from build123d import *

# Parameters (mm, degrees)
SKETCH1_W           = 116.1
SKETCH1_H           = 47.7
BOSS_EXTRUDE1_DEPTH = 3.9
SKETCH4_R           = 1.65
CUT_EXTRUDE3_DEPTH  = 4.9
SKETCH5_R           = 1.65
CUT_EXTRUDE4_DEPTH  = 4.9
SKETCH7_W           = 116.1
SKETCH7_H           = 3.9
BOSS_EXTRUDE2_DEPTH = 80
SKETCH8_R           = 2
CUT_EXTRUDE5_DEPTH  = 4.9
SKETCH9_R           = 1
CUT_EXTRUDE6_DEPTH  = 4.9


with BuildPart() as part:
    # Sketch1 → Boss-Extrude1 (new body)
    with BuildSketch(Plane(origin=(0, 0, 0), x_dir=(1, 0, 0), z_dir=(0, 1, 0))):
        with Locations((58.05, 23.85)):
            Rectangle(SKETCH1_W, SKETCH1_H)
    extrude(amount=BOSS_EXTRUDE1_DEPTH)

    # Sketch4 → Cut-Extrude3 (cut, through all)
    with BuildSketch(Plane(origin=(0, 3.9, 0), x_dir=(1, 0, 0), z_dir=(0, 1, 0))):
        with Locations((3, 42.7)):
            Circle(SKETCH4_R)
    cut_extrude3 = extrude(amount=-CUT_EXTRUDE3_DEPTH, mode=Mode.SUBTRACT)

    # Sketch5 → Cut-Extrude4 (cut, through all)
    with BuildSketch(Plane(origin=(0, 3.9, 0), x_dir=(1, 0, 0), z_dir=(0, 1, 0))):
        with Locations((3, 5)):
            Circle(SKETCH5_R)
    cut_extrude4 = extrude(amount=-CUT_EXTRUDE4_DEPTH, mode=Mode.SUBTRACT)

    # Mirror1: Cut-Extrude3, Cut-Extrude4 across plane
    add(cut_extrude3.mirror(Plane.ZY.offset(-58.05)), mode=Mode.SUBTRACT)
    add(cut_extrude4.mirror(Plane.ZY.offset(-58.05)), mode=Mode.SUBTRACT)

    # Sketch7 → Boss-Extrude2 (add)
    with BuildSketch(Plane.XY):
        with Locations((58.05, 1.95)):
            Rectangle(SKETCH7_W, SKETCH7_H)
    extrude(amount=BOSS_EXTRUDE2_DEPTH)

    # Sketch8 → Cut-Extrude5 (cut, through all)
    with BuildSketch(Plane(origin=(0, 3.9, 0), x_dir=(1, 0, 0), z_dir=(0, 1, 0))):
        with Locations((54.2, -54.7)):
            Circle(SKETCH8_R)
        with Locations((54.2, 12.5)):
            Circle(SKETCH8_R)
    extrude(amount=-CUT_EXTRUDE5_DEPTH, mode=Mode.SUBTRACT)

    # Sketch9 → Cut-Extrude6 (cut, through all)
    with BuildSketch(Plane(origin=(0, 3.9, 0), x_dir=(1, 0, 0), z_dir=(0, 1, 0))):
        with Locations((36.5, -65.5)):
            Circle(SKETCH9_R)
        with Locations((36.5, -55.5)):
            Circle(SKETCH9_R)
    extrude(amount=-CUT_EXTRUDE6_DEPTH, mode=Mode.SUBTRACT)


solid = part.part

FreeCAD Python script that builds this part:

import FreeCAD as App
import Part
import Sketcher
Q = App.Units.Quantity


def add_polygon(sketch, points):
    """Adds a closed chain of lines whose ends are joined by coincident constraints."""
    first, n = sketch.GeometryCount, len(points)
    for a, b in zip(points, points[1:] + points[:1]):
        sketch.addGeometry(Part.LineSegment(App.Vector(*a, 0), App.Vector(*b, 0)), False)
    for i in range(n):
        sketch.addConstraint(Sketcher.Constraint("Coincident", first + i, 2, first + (i + 1) % n, 1))

doc = App.newDocument("Part")
body = doc.addObject("PartDesign::Body", "Body")

sketch1 = doc.addObject("Sketcher::SketchObject", "Sketch")
body.addObject(sketch1)
sketch1.AttachmentSupport = (doc.XZ_Plane, [""])
sketch1.MapMode = "FlatFace"
add_polygon(sketch1, [(0, -48), (0, 0), (116, 0), (116, -48)])
sketch1.addConstraint(Sketcher.Constraint("Vertical", 0))
sketch1.addConstraint(Sketcher.Constraint("Horizontal", 1))
sketch1.addConstraint(Sketcher.Constraint("Vertical", 2))
sketch1.addConstraint(Sketcher.Constraint("Horizontal", 3))
sketch1.addConstraint(Sketcher.Constraint("Coincident", 0, 2, -1, 1))
sketch1.addConstraint(Sketcher.Constraint("DistanceX", 1, 1, 1, 2, Q("116.1 mm")))
sketch1.addConstraint(Sketcher.Constraint("DistanceY", 0, 1, 0, 2, Q("47.7 mm")))
pad1 = doc.addObject("PartDesign::Pad", "Pad")
body.addObject(pad1)
pad1.Profile = sketch1
pad1.Length = 3.9
pad1.Reversed = True

sketch2 = doc.addObject("Sketcher::SketchObject", "Sketch001")
body.addObject(sketch2)
sketch2.AttachmentSupport = (doc.XZ_Plane, [""])
sketch2.MapMode = "FlatFace"
sketch2.AttachmentOffset = App.Placement(App.Vector(0, 0, -3.9), App.Rotation())
sketch2.addGeometry(Part.Circle(App.Vector(3, -42.7, 0), App.Vector(0, 0, 1), 1.6), False)
sketch2.addConstraint(Sketcher.Constraint("Diameter", 0, Q("3.3 mm")))
sketch2.addConstraint(Sketcher.Constraint("DistanceX", -1, 1, 0, 3, Q("3 mm")))
sketch2.addConstraint(Sketcher.Constraint("DistanceY", 0, 3, -1, 1, Q("42.7 mm")))
pocket1 = doc.addObject("PartDesign::Pocket", "Pocket")
body.addObject(pocket1)
pocket1.Profile = sketch2
pocket1.Type = "ThroughAll"
pocket1.Reversed = True

sketch3 = doc.addObject("Sketcher::SketchObject", "Sketch002")
body.addObject(sketch3)
sketch3.AttachmentSupport = (doc.XZ_Plane, [""])
sketch3.MapMode = "FlatFace"
sketch3.AttachmentOffset = App.Placement(App.Vector(0, 0, -3.9), App.Rotation())
sketch3.addGeometry(Part.Circle(App.Vector(3, -5, 0), App.Vector(0, 0, 1), 1.6), False)
sketch3.addConstraint(Sketcher.Constraint("Diameter", 0, Q("3.3 mm")))
sketch3.addConstraint(Sketcher.Constraint("DistanceX", -1, 1, 0, 3, Q("3 mm")))
sketch3.addConstraint(Sketcher.Constraint("DistanceY", 0, 3, -1, 1, Q("5 mm")))
pocket2 = doc.addObject("PartDesign::Pocket", "Pocket001")
body.addObject(pocket2)
pocket2.Profile = sketch3
pocket2.Type = "ThroughAll"
pocket2.Reversed = True
doc.recompute()

datumplane = doc.addObject("PartDesign::Plane", "DatumPlane")
body.addObject(datumplane)
datumplane.AttachmentSupport = (doc.YZ_Plane, [""])
datumplane.MapMode = "FlatFace"
datumplane.AttachmentOffset = App.Placement(App.Vector(0, 0, 58.05), App.Rotation())
mirrored = doc.addObject("PartDesign::Mirrored", "Mirrored")
body.addObject(mirrored)
mirrored.Originals = [pocket1, pocket2]
mirrored.MirrorPlane = (datumplane, [""])
body.Tip = mirrored

sketch4 = doc.addObject("Sketcher::SketchObject", "Sketch003")
body.addObject(sketch4)
sketch4.AttachmentSupport = (doc.XY_Plane, [""])
sketch4.MapMode = "FlatFace"
add_polygon(sketch4, [(0, 3.9), (0, 0), (116.1, 0), (116.1, 3.9)])
sketch4.addConstraint(Sketcher.Constraint("Vertical", 0))
sketch4.addConstraint(Sketcher.Constraint("Horizontal", 1))
sketch4.addConstraint(Sketcher.Constraint("Vertical", 2))
sketch4.addConstraint(Sketcher.Constraint("Horizontal", 3))
sketch4.addConstraint(Sketcher.Constraint("Coincident", 0, 2, -1, 1))
sketch4.addConstraint(Sketcher.Constraint("DistanceX", 1, 1, 1, 2, Q("116.1 mm")))
sketch4.addConstraint(Sketcher.Constraint("DistanceY", 0, 2, 0, 1, Q("3.9 mm")))
pad2 = doc.addObject("PartDesign::Pad", "Pad001")
body.addObject(pad2)
pad2.Profile = sketch4
pad2.Length = 80

sketch5 = doc.addObject("Sketcher::SketchObject", "Sketch004")
body.addObject(sketch5)
sketch5.AttachmentSupport = (doc.XZ_Plane, [""])
sketch5.MapMode = "FlatFace"
sketch5.AttachmentOffset = App.Placement(App.Vector(0, 0, -3.9), App.Rotation())
sketch5.addGeometry(Part.Circle(App.Vector(54.2, 54.7, 0), App.Vector(0, 0, 1), 2), False)
sketch5.addGeometry(Part.Circle(App.Vector(54.2, -12.5, 0), App.Vector(0, 0, 1), 2), False)
sketch5.addConstraint(Sketcher.Constraint("Equal", 0, 1))
sketch5.addConstraint(Sketcher.Constraint("Vertical", 0, 3, 1, 3))
sketch5.addConstraint(Sketcher.Constraint("Diameter", 0, Q("4 mm")))
sketch5.addConstraint(Sketcher.Constraint("DistanceX", -1, 1, 0, 3, Q("54.2 mm")))
sketch5.addConstraint(Sketcher.Constraint("DistanceY", -1, 1, 0, 3, Q("54.7 mm")))
sketch5.addConstraint(Sketcher.Constraint("DistanceY", 1, 3, -1, 1, Q("12.5 mm")))
pocket3 = doc.addObject("PartDesign::Pocket", "Pocket002")
body.addObject(pocket3)
pocket3.Profile = sketch5
pocket3.Type = "ThroughAll"
pocket3.Reversed = True

sketch6 = doc.addObject("Sketcher::SketchObject", "Sketch005")
body.addObject(sketch6)
sketch6.AttachmentSupport = (doc.XZ_Plane, [""])
sketch6.MapMode = "FlatFace"
sketch6.AttachmentOffset = App.Placement(App.Vector(0, 0, -3.9), App.Rotation())
sketch6.addGeometry(Part.Circle(App.Vector(36.5, 65.5, 0), App.Vector(0, 0, 1), 1), False)
sketch6.addGeometry(Part.Circle(App.Vector(36.5, 55.5, 0), App.Vector(0, 0, 1), 1), False)
sketch6.addConstraint(Sketcher.Constraint("Equal", 0, 1))
sketch6.addConstraint(Sketcher.Constraint("Vertical", 0, 3, 1, 3))
sketch6.addConstraint(Sketcher.Constraint("Diameter", 0, Q("2 mm")))
sketch6.addConstraint(Sketcher.Constraint("DistanceY", 1, 3, 0, 3, Q("10 mm")))
sketch6.addConstraint(Sketcher.Constraint("DistanceX", -1, 1, 0, 3, Q("36.5 mm")))
sketch6.addConstraint(Sketcher.Constraint("DistanceY", -1, 1, 0, 3, Q("65.5 mm")))
pocket4 = doc.addObject("PartDesign::Pocket", "Pocket003")
body.addObject(pocket4)
pocket4.Profile = sketch6
pocket4.Type = "ThroughAll"
pocket4.Reversed = True

doc.recompute()
